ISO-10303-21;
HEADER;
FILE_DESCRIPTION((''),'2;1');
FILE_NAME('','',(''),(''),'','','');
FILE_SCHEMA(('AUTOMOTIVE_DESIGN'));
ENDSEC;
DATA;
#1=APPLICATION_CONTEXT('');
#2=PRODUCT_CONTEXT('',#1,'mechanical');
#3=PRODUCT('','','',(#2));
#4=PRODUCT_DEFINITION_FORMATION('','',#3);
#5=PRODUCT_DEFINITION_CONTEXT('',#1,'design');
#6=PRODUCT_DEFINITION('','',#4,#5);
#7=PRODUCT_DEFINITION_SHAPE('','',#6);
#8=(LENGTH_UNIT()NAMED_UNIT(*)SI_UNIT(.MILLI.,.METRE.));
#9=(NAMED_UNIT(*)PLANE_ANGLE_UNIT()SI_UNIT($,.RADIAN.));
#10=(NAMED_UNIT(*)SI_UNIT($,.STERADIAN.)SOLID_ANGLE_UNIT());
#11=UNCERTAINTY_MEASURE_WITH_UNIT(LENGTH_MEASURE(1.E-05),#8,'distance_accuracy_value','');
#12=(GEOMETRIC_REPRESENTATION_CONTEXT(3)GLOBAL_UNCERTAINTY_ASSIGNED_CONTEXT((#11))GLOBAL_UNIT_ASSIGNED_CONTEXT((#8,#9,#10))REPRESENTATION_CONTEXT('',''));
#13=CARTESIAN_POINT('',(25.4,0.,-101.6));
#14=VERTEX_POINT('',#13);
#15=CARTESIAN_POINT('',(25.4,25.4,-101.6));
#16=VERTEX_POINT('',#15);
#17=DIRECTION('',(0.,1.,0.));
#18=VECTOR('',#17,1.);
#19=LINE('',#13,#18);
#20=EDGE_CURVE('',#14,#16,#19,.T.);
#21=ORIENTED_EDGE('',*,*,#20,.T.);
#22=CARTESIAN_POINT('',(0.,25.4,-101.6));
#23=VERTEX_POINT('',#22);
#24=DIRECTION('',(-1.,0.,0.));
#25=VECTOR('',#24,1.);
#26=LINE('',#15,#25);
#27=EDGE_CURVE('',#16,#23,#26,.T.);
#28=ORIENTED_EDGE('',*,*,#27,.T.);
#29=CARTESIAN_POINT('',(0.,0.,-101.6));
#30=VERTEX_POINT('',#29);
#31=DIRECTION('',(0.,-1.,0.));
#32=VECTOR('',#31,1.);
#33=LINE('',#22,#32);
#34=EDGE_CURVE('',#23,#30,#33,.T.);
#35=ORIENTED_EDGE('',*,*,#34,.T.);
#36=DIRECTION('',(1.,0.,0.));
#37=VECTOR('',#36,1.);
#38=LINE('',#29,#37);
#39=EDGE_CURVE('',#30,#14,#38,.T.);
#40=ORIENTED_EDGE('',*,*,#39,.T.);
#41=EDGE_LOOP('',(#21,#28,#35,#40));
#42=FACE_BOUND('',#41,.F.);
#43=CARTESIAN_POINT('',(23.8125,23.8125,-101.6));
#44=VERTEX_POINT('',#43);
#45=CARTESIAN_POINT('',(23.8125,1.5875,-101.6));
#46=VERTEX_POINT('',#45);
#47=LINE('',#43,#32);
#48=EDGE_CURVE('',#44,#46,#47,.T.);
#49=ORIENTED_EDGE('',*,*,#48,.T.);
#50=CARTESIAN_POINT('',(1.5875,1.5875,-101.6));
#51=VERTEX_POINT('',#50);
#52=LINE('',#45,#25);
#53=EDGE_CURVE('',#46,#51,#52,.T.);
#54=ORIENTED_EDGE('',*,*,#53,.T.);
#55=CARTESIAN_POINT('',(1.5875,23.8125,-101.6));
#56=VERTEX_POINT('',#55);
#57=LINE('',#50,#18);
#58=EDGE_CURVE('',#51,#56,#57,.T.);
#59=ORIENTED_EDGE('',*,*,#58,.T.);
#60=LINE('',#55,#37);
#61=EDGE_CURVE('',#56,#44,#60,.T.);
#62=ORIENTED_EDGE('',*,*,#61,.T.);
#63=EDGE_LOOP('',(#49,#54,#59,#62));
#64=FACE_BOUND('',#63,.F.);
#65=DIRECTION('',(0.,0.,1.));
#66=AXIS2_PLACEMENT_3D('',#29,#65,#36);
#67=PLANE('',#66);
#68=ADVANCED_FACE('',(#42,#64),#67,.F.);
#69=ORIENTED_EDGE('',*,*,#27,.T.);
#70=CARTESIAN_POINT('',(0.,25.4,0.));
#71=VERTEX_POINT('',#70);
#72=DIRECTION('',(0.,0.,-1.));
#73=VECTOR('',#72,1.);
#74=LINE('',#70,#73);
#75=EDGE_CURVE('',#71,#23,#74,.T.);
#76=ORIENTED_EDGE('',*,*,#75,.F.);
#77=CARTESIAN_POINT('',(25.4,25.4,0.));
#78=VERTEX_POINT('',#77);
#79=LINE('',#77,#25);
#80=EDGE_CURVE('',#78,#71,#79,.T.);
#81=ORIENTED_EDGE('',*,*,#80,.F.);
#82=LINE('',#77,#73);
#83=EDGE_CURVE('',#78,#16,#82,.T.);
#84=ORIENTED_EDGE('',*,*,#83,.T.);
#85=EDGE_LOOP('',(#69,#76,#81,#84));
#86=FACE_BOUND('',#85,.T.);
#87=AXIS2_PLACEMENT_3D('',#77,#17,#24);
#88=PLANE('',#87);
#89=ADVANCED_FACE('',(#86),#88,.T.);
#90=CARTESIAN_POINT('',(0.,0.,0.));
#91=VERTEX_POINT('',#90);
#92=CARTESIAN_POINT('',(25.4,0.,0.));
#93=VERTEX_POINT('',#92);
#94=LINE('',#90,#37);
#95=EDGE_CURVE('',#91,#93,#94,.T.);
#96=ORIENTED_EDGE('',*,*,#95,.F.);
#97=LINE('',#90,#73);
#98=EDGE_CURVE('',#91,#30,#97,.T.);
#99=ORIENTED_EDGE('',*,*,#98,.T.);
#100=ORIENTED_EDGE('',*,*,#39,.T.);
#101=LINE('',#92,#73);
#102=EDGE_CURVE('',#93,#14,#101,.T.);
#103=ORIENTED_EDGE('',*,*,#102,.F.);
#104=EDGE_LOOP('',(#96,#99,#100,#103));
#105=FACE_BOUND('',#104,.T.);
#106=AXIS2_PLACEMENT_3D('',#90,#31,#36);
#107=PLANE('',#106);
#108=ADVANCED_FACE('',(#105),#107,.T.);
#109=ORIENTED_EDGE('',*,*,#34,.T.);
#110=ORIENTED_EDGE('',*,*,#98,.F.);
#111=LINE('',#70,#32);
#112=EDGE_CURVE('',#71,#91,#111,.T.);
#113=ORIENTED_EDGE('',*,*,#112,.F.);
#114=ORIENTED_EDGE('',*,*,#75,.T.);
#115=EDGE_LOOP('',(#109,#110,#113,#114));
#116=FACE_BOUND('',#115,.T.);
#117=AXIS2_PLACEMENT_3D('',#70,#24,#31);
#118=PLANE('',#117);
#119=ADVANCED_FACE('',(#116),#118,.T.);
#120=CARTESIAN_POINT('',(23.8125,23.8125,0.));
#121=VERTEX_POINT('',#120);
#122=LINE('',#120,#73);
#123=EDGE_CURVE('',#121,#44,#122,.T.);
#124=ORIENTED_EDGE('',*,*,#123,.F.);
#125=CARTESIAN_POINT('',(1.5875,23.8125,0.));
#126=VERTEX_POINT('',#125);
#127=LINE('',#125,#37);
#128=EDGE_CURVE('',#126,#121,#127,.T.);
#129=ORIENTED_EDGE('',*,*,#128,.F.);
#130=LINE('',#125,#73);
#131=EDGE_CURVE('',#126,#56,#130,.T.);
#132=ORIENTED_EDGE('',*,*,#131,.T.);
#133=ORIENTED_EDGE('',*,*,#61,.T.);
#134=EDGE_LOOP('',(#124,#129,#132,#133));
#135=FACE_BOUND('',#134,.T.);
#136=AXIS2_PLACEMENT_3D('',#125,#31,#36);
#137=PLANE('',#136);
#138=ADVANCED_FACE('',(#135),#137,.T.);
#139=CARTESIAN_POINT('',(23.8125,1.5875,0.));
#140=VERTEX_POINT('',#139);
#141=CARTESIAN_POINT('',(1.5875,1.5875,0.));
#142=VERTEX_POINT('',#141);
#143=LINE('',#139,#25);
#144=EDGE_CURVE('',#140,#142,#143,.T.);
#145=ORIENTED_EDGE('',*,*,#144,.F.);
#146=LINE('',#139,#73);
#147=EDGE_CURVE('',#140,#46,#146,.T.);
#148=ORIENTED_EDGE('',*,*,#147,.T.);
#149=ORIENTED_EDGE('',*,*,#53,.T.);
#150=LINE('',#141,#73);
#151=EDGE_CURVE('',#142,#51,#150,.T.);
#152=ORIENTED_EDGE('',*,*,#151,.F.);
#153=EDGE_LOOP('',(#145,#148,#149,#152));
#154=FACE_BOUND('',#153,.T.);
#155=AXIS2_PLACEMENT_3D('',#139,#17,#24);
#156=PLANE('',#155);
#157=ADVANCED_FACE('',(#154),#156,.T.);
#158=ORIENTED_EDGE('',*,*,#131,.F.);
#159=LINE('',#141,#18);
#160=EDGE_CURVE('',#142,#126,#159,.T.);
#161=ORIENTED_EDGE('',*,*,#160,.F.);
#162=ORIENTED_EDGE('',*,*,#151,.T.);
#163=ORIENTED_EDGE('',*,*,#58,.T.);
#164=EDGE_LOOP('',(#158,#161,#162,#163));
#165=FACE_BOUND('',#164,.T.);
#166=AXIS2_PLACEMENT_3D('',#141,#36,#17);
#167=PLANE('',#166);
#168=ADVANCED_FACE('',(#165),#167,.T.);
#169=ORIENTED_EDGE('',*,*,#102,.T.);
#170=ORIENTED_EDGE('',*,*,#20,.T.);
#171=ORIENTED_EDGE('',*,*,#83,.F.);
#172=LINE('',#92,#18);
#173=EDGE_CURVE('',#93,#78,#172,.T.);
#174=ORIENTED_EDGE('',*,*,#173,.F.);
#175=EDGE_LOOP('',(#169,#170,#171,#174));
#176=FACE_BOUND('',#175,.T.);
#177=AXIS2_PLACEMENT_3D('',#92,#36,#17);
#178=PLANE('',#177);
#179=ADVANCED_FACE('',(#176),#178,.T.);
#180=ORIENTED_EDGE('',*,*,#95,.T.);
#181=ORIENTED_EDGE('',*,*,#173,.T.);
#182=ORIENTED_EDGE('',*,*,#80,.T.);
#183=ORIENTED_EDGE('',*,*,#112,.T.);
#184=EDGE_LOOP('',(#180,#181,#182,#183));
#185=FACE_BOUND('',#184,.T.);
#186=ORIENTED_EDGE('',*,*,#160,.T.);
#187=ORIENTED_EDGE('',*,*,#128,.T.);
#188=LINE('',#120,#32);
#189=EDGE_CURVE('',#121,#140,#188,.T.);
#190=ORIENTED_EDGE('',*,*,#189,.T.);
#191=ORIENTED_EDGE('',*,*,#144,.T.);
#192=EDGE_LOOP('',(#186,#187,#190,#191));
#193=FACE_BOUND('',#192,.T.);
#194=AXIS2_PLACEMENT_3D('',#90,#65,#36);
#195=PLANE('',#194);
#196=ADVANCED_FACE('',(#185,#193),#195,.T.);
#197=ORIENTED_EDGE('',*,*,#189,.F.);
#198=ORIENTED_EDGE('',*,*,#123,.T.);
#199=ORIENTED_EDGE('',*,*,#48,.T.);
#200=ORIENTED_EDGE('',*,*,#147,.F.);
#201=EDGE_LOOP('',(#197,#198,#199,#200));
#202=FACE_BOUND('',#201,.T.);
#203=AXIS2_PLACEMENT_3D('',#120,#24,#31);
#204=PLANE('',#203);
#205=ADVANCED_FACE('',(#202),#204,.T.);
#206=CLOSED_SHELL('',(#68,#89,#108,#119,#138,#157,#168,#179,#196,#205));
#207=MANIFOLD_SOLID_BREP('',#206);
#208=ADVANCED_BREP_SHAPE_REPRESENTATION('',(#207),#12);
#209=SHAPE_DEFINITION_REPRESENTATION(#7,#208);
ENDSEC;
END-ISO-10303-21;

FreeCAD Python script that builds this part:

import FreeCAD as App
import Part
import Sketcher
Q = App.Units.Quantity


def add_polygon(sketch, points):
    """Adds a closed chain of lines whose ends are joined by coincident constraints."""
    first, n = sketch.GeometryCount, len(points)
    for a, b in zip(points, points[1:] + points[:1]):
        sketch.addGeometry(Part.LineSegment(App.Vector(*a, 0), App.Vector(*b, 0)), False)
    for i in range(n):
        sketch.addConstraint(Sketcher.Constraint("Coincident", first + i, 2, first + (i + 1) % n, 1))

doc = App.newDocument("Part")
body = doc.addObject("PartDesign::Body", "Body")

sketch1 = body.newObject("Sketcher::SketchObject", "Sketch")
sketch1.AttachmentSupport = (doc.getObject("XY_Plane"), [""])
sketch1.MapMode = "FlatFace"
add_polygon(sketch1, [(0, 25), (0, 0), (25, 0), (25, 25)])
add_polygon(sketch1, [(2, 2), (2, 24), (24, 24), (24, 2)])
sketch1.addConstraint([
    Sketcher.Constraint("Vertical", 0),
    Sketcher.Constraint("Horizontal", 1),
    Sketcher.Constraint("Vertical", 2),
    Sketcher.Constraint("Horizontal", 3),
    Sketcher.Constraint("Vertical", 4),
    Sketcher.Constraint("Horizontal", 5),
    Sketcher.Constraint("Vertical", 6),
    Sketcher.Constraint("Horizontal", 7),
    Sketcher.Constraint("Coincident", 0, 2, -1, 1),
    Sketcher.Constraint("Equal", 3, 0),
    Sketcher.Constraint("Equal", 7, 4),
    Sketcher.Constraint("DistanceX", 1, 1, 1, 2, Q("1 in")),
    Sketcher.Constraint("DistanceX", -1, 1, 4, 2, Q("0.0625 in")),
    Sketcher.Constraint("DistanceY", -1, 1, 6, 2, Q("0.0625 in")),
    Sketcher.Constraint("DistanceY", 4, 2, 3, 2, Q("0.0625 in")),
])
pad1 = body.newObject("PartDesign::Pad", "Pad")
pad1.Profile = sketch1
pad1.Length = Q("4 in")
pad1.Reversed = True

doc.recompute()
